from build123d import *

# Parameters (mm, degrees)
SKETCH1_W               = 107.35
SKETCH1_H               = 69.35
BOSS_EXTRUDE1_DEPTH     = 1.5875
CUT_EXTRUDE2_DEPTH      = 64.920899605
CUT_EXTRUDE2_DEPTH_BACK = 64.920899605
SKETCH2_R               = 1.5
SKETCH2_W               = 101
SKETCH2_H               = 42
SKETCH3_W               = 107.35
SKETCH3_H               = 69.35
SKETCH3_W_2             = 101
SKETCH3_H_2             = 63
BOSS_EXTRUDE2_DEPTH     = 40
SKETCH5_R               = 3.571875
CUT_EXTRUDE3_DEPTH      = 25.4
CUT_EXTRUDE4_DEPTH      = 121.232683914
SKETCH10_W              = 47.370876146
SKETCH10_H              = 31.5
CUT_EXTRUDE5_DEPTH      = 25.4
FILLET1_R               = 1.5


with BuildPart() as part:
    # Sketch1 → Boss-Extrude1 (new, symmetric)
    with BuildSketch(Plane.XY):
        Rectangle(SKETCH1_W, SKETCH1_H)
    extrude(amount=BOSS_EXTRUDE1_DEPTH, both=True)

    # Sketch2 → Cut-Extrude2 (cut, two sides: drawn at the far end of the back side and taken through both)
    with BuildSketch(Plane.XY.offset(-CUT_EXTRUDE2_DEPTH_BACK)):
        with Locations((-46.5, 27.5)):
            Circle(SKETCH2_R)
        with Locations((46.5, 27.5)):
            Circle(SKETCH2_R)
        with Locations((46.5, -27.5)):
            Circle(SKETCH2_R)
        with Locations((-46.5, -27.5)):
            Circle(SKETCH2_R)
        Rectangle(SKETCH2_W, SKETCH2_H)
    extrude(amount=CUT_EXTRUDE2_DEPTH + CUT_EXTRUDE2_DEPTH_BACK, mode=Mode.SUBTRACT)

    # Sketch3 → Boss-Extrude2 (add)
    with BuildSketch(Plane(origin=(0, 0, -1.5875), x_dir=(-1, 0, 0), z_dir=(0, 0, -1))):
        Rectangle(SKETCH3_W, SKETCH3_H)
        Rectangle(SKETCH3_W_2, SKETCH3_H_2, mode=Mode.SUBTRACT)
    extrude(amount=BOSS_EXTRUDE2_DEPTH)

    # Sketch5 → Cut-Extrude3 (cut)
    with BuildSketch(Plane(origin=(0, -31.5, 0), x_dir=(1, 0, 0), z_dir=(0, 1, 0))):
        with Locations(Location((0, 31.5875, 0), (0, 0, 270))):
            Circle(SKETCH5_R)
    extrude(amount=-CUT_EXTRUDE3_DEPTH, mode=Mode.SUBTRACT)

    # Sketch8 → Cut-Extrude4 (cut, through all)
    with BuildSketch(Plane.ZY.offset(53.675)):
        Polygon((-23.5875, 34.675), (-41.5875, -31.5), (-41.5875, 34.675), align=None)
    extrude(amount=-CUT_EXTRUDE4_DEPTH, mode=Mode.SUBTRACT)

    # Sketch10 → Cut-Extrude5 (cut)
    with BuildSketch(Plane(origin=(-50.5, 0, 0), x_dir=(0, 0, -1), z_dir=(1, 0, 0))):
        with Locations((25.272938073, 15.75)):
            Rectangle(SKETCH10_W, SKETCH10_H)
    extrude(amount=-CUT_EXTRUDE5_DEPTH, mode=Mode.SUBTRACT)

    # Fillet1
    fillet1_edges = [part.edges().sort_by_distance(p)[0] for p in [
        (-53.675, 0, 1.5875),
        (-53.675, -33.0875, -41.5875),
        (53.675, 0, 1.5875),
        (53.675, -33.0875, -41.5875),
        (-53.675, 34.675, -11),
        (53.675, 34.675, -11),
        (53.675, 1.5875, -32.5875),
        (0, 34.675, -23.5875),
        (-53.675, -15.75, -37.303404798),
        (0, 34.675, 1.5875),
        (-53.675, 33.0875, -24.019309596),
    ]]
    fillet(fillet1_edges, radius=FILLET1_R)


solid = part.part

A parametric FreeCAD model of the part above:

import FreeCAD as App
import Part
import Sketcher

V = App.Vector
Q = App.Units.Quantity


def edges_at(feature, points):
    """Names of the edges that pass closest to the given points."""
    edges = feature.Shape.Edges
    near = lambda p: min(range(len(edges)), key=lambda i: edges[i].distToShape(Part.Vertex(*p))[0])
    return sorted({f"Edge{near(p) + 1}" for p in points})

doc = App.newDocument("Part")
body = doc.addObject("PartDesign::Body", "Body")

# Sketch on XY plane
sketch1 = body.newObject("Sketcher::SketchObject", "Sketch")
sketch1.AttachmentSupport = (doc.getObject("XY_Plane"), [""])
sketch1.MapMode = "FlatFace"
sketch1.addGeometry([
    Part.LineSegment(V(-53.675, 34.675, 0), V(-53.675, -34.675, 0)),
    Part.LineSegment(V(-53.675, -34.675, 0), V(53.675, -34.675, 0)),
    Part.LineSegment(V(53.675, -34.675, 0), V(53.675, 34.675, 0)),
    Part.LineSegment(V(53.675, 34.675, 0), V(-53.675, 34.675, 0)),
], False)
sketch1.addConstraint([
    Sketcher.Constraint("Coincident", 0, 2, 1, 1),
    Sketcher.Constraint("Coincident", 1, 2, 2, 1),
    Sketcher.Constraint("Coincident", 2, 2, 3, 1),
    Sketcher.Constraint("Coincident", 3, 2, 0, 1),
    Sketcher.Constraint("Vertical", 0),
    Sketcher.Constraint("Horizontal", 1),
    Sketcher.Constraint("Vertical", 2),
    Sketcher.Constraint("Horizontal", 3),
    Sketcher.Constraint("Symmetric", 0, 2, 2, 2, -1, 1),
    Sketcher.Constraint("DistanceX", 1, 1, 1, 2, Q("107.35 mm")),
    Sketcher.Constraint("DistanceY", 0, 2, 0, 1, Q("69.35 mm")),
])
pad1 = body.newObject("PartDesign::Pad", "Pad")
pad1.Profile = sketch1
pad1.Length = 3.175
pad1.Midplane = True

# Sketch on XY plane
sketch2 = body.newObject("Sketcher::SketchObject", "Sketch001")
sketch2.AttachmentSupport = (doc.getObject("XY_Plane"), [""])
sketch2.MapMode = "FlatFace"
sketch2.addGeometry([
    Part.Circle(V(-46.5, 27.5, 0), V(0, 0, 1), 1.5),  # 0
    Part.Circle(V(46.5, 27.5, 0), V(0, 0, 1), 1.5),  # 1
    Part.Circle(V(46.5, -27.5, 0), V(0, 0, 1), 1.5),  # 2
    Part.Circle(V(-46.5, -27.5, 0), V(0, 0, 1), 1.5),  # 3
    Part.LineSegment(V(-50.5, 21, 0), V(-50.5, -21, 0)),  # 4
    Part.LineSegment(V(-50.5, -21, 0), V(50.5, -21, 0)),  # 5
    Part.LineSegment(V(50.5, -21, 0), V(50.5, 21, 0)),  # 6
    Part.LineSegment(V(50.5, 21, 0), V(-50.5, 21, 0)),  # 7
], False)
sketch2.addConstraint([
    Sketcher.Constraint("Coincident", 4, 2, 5, 1),
    Sketcher.Constraint("Coincident", 5, 2, 6, 1),
    Sketcher.Constraint("Coincident", 6, 2, 7, 1),
    Sketcher.Constraint("Coincident", 7, 2, 4, 1),
    Sketcher.Constraint("Vertical", 4),
    Sketcher.Constraint("Horizontal", 5),
    Sketcher.Constraint("Vertical", 6),
    Sketcher.Constraint("Horizontal", 7),
    Sketcher.Constraint("Equal", 0, 1),
    Sketcher.Constraint("Equal", 1, 2),
    Sketcher.Constraint("Equal", 2, 3),
    Sketcher.Constraint("Symmetric", 0, 3, 2, 3, -1, 1),
    Sketcher.Constraint("Symmetric", 1, 3, 3, 3, -1, 1),
    Sketcher.Constraint("Symmetric", 4, 2, 6, 2, -1, 1),
    Sketcher.Constraint("Symmetric", 0, 3, 1, 3, -2),
    Sketcher.Constraint("Diameter", 0, Q("3 mm")),
    Sketcher.Constraint("DistanceX", 5, 1, 5, 2, Q("101 mm")),
    Sketcher.Constraint("DistanceY", 4, 2, 4, 1, Q("42 mm")),
    Sketcher.Constraint("DistanceX", 0, 3, 1, 3, Q("93 mm")),
    Sketcher.Constraint("DistanceY", 2, 3, 1, 3, Q("55 mm")),
])
pocket1 = body.newObject("PartDesign::Pocket", "Pocket")
pocket1.Profile = sketch2
pocket1.Type = "ThroughAll"
pocket1.Midplane = True

# Sketch on XY plane
sketch3 = body.newObject("Sketcher::SketchObject", "Sketch002")
sketch3.AttachmentSupport = (doc.getObject("XY_Plane"), [""])
sketch3.MapMode = "FlatFace"
sketch3.AttachmentOffset = App.Placement(V(0, 0, -1.5875), App.Rotation())
sketch3.addGeometry([
    Part.LineSegment(V(53.675, 34.675, 0), V(53.675, -34.675, 0)),  # 0
    Part.LineSegment(V(53.675, -34.675, 0), V(-53.675, -34.675, 0)),  # 1
    Part.LineSegment(V(-53.675, -34.675, 0), V(-53.675, 34.675, 0)),  # 2
    Part.LineSegment(V(-53.675, 34.675, 0), V(53.675, 34.675, 0)),  # 3
    Part.LineSegment(V(-50.5, -31.5, 0), V(50.5, -31.5, 0)),  # 4
    Part.LineSegment(V(50.5, -31.5, 0), V(50.5, 31.5, 0)),  # 5
    Part.LineSegment(V(50.5, 31.5, 0), V(-50.5, 31.5, 0)),  # 6
    Part.LineSegment(V(-50.5, 31.5, 0), V(-50.5, -31.5, 0)),  # 7
], False)
sketch3.addConstraint([
    Sketcher.Constraint("Coincident", 0, 2, 1, 1),
    Sketcher.Constraint("Coincident", 1, 2, 2, 1),
    Sketcher.Constraint("Coincident", 2, 2, 3, 1),
    Sketcher.Constraint("Coincident", 3, 2, 0, 1),
    Sketcher.Constraint("Coincident", 4, 2, 5, 1),
    Sketcher.Constraint("Coincident", 5, 2, 6, 1),
    Sketcher.Constraint("Coincident", 6, 2, 7, 1),
    Sketcher.Constraint("Coincident", 7, 2, 4, 1),
    Sketcher.Constraint("Vertical", 0),
    Sketcher.Constraint("Horizontal", 1),
    Sketcher.Constraint("Vertical", 2),
    Sketcher.Constraint("Horizontal", 3),
    Sketcher.Constraint("Horizontal", 4),
    Sketcher.Constraint("Vertical", 5),
    Sketcher.Constraint("Horizontal", 6),
    Sketcher.Constraint("Vertical", 7),
    Sketcher.Constraint("Symmetric", 0, 2, 2, 2, -1, 1),
    Sketcher.Constraint("Symmetric", 4, 2, 6, 2, -1, 1),
    Sketcher.Constraint("DistanceX", 4, 1, 4, 2, Q("101 mm")),
    Sketcher.Constraint("DistanceY", 5, 1, 5, 2, Q("63 mm")),
    Sketcher.Constraint("DistanceX", 1, 2, 1, 1, Q("107.35 mm")),
    Sketcher.Constraint("DistanceY", 0, 2, 0, 1, Q("69.35 mm")),
])
pad2 = body.newObject("PartDesign::Pad", "Pad001")
pad2.Profile = sketch3
pad2.Length = 40
pad2.Reversed = True

# Sketch on XZ plane
sketch4 = body.newObject("Sketcher::SketchObject", "Sketch003")
sketch4.AttachmentSupport = (doc.getObject("XZ_Plane"), [""])
sketch4.MapMode = "FlatFace"
sketch4.AttachmentOffset = App.Placement(V(0, 0, 31.5), App.Rotation())
sketch4.addGeometry(Part.Circle(V(0, -31.5875, 0), V(0, 0, 1), 3.571875), False)
sketch4.addConstraint([
    Sketcher.Constraint("PointOnObject", 0, 3, -2),
    Sketcher.Constraint("Diameter", 0, Q("7.14375 mm")),
    Sketcher.Constraint("DistanceY", 0, 3, -1, 1, Q("31.5875 mm")),
])
pocket2 = body.newObject("PartDesign::Pocket", "Pocket001")
pocket2.Profile = sketch4
pocket2.Length = 25.4
pocket2.Reversed = True

# Sketch on YZ plane
sketch5 = body.newObject("Sketcher::SketchObject", "Sketch004")
sketch5.AttachmentSupport = (doc.getObject("YZ_Plane"), [""])
sketch5.MapMode = "FlatFace"
sketch5.AttachmentOffset = App.Placement(V(0, 0, -53.675), App.Rotation())
sketch5.addGeometry([
    Part.LineSegment(V(-31.5, -41.5875, 0), V(34.675, -23.5875, 0)),
    Part.LineSegment(V(34.675, -23.5875, 0), V(34.675, -41.5875, 0)),
    Part.LineSegment(V(34.675, -41.5875, 0), V(-31.5, -41.5875, 0)),
], False)
sketch5.addConstraint([
    Sketcher.Constraint("Coincident", 0, 2, 1, 1),
    Sketcher.Constraint("Coincident", 1, 2, 2, 1),
    Sketcher.Constraint("Coincident", 2, 2, 0, 1),
    Sketcher.Constraint("Vertical", 1),
    Sketcher.Constraint("Horizontal", 2),
    Sketcher.Constraint("DistanceY", 1, 2, 1, 1, Q("18 mm")),
    Sketcher.Constraint("DistanceX", 2, 2, -1, 1, Q("31.5 mm")),
    Sketcher.Constraint("DistanceX", 2, 2, 2, 1, Q("66.175 mm")),
    Sketcher.Constraint("DistanceY", 0, 2, -1, 1, Q("23.5875 mm")),
])
pocket3 = body.newObject("PartDesign::Pocket", "Pocket002")
pocket3.Profile = sketch5
pocket3.Type = "ThroughAll"
pocket3.Reversed = True

# Sketch on YZ plane
sketch6 = body.newObject("Sketcher::SketchObject", "Sketch005")
sketch6.AttachmentSupport = (doc.getObject("YZ_Plane"), [""])
sketch6.MapMode = "FlatFace"
sketch6.AttachmentOffset = App.Placement(V(0, 0, -50.5), App.Rotation())
sketch6.addGeometry([
    Part.LineSegment(V(31.5, -1.5875, 0), V(0, -1.5875, 0)),
    Part.LineSegment(V(0, -1.5875, 0), V(0, -48.958376, 0)),
    Part.LineSegment(V(0, -48.958376, 0), V(31.5, -48.958376, 0)),
    Part.LineSegment(V(31.5, -48.958376, 0), V(31.5, -1.5875, 0)),
], False)
sketch6.addConstraint([
    Sketcher.Constraint("Coincident", 0, 2, 1, 1),
    Sketcher.Constraint("Coincident", 1, 2, 2, 1),
    Sketcher.Constraint("Coincident", 2, 2, 3, 1),
    Sketcher.Constraint("Coincident", 3, 2, 0, 1),
    Sketcher.Constraint("Horizontal", 0),
    Sketcher.Constraint("Vertical", 1),
    Sketcher.Constraint("Horizontal", 2),
    Sketcher.Constraint("Vertical", 3),
    Sketcher.Constraint("PointOnObject", 0, 2, -2),
    Sketcher.Constraint("DistanceX", 0, 2, 0, 1, Q("31.5 mm")),
    Sketcher.Constraint("DistanceY", 0, 2, -1, 1, Q("1.5875 mm")),
    Sketcher.Constraint("DistanceY", 1, 2, 1, 1, Q("47.370876 mm")),
])
pocket4 = body.newObject("PartDesign::Pocket", "Pocket003")
pocket4.Profile = sketch6
pocket4.Length = 25.4
doc.recompute()

fillet = body.newObject("PartDesign::Fillet", "Fillet")
fillet.Base = (pocket4, edges_at(pocket4, [
    (-53.675, 0, 1.587),
    (-53.675, -33.087, -41.587),
    (53.675, 0, 1.587),
    (53.675, -33.087, -41.587),
    (-53.675, 34.675, -11),
    (53.675, 34.675, -11),
    (53.675, 1.587, -32.587),
    (0, 34.675, -23.587),
    (-53.675, -15.75, -37.303),
    (0, 34.675, 1.587),
    (-53.675, 33.087, -24.019),
]))
fillet.Radius = 1.5

doc.recompute()
